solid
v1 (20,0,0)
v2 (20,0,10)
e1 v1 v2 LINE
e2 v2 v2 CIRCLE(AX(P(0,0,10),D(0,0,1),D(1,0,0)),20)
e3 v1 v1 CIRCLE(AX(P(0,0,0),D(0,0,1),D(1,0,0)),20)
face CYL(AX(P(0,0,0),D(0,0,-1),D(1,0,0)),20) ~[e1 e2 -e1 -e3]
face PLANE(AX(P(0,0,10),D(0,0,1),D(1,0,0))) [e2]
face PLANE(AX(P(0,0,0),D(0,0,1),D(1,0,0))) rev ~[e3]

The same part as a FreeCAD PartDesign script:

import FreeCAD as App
import Part
import Sketcher

V = App.Vector

doc = App.newDocument("Part")
body = doc.addObject("PartDesign::Body", "Body")

# Sketch on XY plane
sketch1 = doc.addObject("Sketcher::SketchObject", "Sketch")
body.addObject(sketch1)
sketch1.AttachmentSupport = (doc.XY_Plane, [""])
sketch1.MapMode = "FlatFace"
sketch1.addGeometry(Part.Circle(V(0, 0, 0), V(0, 0, 1), 20), False)
sketch1.addConstraint([
    Sketcher.Constraint("Coincident", 0, 3, -1, 1),
    Sketcher.Constraint("Diameter", 0, 40.0),
])
pad1 = doc.addObject("PartDesign::Pad", "Pad")
body.addObject(pad1)
pad1.Profile = sketch1
pad1.Length = 10

doc.recompute()
